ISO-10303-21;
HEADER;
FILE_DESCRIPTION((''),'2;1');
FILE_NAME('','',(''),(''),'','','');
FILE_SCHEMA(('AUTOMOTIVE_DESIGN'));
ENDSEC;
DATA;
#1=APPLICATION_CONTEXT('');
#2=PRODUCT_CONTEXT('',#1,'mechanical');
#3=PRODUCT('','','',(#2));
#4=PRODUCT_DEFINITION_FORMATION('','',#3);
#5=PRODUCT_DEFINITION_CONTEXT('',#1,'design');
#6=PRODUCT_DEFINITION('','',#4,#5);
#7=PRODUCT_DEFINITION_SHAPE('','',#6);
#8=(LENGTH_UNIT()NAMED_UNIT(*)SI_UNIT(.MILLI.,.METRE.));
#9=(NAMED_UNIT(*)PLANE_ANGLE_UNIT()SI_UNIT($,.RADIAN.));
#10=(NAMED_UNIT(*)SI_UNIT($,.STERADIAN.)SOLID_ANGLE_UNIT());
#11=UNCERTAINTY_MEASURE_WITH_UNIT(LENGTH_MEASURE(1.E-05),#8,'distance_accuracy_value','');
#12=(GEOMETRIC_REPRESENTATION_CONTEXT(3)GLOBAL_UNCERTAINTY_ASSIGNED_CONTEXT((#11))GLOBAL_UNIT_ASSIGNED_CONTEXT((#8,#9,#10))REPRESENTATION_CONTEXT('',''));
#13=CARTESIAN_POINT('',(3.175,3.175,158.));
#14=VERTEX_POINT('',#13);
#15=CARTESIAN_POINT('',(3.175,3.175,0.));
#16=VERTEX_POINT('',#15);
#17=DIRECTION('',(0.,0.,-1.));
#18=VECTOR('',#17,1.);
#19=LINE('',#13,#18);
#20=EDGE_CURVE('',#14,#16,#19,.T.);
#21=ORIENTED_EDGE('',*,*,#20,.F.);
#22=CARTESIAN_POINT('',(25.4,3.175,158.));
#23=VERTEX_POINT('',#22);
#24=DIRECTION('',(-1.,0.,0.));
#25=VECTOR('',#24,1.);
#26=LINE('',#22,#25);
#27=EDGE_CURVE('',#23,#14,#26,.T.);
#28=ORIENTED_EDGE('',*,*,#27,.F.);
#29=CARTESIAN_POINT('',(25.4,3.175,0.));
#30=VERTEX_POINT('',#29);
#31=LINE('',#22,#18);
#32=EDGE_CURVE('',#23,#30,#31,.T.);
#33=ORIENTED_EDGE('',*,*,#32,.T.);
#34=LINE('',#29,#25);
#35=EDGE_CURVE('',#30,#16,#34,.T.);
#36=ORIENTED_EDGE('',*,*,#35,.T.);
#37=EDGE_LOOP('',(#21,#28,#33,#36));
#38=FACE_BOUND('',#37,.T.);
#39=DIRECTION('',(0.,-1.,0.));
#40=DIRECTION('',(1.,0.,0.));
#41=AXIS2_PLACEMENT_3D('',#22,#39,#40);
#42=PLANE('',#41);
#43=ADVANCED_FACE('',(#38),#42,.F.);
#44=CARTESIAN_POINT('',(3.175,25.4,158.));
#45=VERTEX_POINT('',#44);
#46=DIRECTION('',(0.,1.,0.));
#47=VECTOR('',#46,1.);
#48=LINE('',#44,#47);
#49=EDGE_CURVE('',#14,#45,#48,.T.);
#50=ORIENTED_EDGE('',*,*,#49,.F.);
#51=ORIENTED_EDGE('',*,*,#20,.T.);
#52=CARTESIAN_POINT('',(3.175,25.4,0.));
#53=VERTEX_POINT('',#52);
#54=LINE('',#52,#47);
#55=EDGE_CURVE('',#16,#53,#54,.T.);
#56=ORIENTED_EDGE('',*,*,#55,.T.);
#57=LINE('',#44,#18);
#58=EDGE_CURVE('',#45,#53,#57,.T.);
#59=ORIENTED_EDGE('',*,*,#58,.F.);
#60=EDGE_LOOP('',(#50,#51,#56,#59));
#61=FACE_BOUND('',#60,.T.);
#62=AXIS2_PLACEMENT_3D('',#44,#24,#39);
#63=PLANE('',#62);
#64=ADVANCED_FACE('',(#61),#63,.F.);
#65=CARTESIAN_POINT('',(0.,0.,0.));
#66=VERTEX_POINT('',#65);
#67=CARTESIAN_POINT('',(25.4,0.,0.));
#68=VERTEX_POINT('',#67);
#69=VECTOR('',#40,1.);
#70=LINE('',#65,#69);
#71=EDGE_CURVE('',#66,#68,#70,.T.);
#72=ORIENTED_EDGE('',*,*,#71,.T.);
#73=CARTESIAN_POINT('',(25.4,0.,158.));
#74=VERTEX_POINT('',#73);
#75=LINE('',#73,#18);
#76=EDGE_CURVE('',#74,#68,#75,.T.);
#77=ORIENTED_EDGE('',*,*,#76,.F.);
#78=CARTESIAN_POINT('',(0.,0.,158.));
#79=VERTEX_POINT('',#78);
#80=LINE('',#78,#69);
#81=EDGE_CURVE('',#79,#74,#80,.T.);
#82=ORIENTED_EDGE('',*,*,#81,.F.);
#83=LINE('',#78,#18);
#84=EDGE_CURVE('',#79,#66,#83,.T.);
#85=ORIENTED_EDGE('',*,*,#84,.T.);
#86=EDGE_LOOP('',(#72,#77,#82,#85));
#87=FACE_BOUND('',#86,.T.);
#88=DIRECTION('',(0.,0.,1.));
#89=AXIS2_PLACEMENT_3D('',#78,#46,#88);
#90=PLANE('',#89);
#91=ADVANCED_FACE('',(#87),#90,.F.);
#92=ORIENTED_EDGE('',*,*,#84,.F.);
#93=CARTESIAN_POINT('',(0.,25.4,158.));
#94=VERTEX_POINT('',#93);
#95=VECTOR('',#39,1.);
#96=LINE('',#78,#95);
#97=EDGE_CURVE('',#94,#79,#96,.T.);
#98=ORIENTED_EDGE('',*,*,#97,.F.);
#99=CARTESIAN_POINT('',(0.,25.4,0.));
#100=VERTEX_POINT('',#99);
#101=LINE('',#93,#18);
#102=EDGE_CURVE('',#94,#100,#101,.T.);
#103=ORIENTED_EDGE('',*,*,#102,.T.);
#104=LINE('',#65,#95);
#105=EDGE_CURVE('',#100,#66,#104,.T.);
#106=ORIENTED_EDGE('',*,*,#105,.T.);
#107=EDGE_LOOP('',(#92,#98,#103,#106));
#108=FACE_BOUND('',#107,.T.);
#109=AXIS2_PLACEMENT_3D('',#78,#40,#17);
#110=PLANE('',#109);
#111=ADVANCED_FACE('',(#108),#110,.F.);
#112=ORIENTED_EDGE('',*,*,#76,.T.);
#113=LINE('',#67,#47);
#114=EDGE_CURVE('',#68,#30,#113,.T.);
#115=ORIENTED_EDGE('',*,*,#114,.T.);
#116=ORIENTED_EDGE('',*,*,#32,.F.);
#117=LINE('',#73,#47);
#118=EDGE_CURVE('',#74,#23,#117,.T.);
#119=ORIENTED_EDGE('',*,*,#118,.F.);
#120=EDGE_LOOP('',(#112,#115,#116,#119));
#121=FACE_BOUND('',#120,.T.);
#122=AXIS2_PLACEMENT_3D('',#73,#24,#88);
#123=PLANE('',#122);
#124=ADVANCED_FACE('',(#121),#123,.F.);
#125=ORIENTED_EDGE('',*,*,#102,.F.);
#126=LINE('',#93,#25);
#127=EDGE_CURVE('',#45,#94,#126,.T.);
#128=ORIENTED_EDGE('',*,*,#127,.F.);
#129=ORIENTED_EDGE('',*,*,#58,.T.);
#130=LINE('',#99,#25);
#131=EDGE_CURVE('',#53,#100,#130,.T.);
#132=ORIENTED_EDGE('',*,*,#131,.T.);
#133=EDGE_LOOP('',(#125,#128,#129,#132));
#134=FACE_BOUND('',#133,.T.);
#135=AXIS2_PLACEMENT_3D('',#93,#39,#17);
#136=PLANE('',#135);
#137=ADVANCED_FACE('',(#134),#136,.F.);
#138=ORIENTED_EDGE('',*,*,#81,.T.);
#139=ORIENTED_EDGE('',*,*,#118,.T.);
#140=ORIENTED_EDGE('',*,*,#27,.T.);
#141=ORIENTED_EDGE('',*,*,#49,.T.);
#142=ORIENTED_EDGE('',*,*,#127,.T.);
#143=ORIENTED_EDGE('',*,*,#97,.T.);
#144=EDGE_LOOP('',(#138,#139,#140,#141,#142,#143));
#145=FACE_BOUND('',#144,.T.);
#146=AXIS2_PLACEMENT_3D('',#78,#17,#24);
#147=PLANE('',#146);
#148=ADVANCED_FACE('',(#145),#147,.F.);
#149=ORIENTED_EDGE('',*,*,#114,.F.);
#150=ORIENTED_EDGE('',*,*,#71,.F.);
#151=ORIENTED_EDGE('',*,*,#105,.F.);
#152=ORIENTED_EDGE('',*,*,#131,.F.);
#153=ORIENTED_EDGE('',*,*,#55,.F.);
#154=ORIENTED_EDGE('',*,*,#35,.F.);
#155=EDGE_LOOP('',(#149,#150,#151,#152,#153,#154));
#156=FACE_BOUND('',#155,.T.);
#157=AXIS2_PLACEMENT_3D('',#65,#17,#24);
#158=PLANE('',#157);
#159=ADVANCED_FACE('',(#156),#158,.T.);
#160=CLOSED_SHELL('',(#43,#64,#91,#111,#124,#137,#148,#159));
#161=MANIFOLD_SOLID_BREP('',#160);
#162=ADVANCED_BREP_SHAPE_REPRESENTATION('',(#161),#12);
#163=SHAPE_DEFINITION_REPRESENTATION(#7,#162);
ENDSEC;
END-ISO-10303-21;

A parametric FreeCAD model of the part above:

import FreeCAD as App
import Part
import Sketcher
Q = App.Units.Quantity

doc = App.newDocument("Part")
body = doc.addObject("PartDesign::Body", "Body")

# Sketch on XY plane
sketch1 = body.newObject("Sketcher::SketchObject", "Sketch")
sketch1.AttachmentSupport = (doc.getObject("XY_Plane"), [""])
sketch1.MapMode = "FlatFace"
sketch1.addGeometry([
    Part.LineSegment(App.Vector(0, 0, 0), App.Vector(25.4, 0, 0)),  # 0
    Part.LineSegment(App.Vector(25.4, 0, 0), App.Vector(25.4, 3.175, 0)),  # 1
    Part.LineSegment(App.Vector(25.4, 3.175, 0), App.Vector(3.175, 3.175, 0)),  # 2
    Part.LineSegment(App.Vector(3.175, 3.175, 0), App.Vector(3.175, 25.4, 0)),  # 3
    Part.LineSegment(App.Vector(3.175, 25.4, 0), App.Vector(0, 25.4, 0)),  # 4
    Part.LineSegment(App.Vector(0, 25.4, 0), App.Vector(0, 0, 0)),  # 5
], False)
sketch1.addConstraint([
    Sketcher.Constraint("Coincident", 0, 2, 1, 1),
    Sketcher.Constraint("Coincident", 1, 2, 2, 1),
    Sketcher.Constraint("Coincident", 2, 2, 3, 1),
    Sketcher.Constraint("Coincident", 3, 2, 4, 1),
    Sketcher.Constraint("Coincident", 4, 2, 5, 1),
    Sketcher.Constraint("Coincident", 5, 2, 0, 1),
    Sketcher.Constraint("Horizontal", 0),
    Sketcher.Constraint("Vertical", 1),
    Sketcher.Constraint("Horizontal", 2),
    Sketcher.Constraint("Vertical", 3),
    Sketcher.Constraint("Horizontal", 4),
    Sketcher.Constraint("Vertical", 5),
    Sketcher.Constraint("Coincident", 5, 2, -1, 1),
    Sketcher.Constraint("Equal", 4, 1),
    Sketcher.Constraint("Equal", 2, 3),
    Sketcher.Constraint("DistanceX", 0, 1, 0, 2, Q("1 in")),
    Sketcher.Constraint("DistanceX", 2, 2, 2, 1, Q("0.875 in")),
])
pad1 = body.newObject("PartDesign::Pad", "Pad")
pad1.Profile = sketch1
pad1.Length = 158

doc.recompute()
